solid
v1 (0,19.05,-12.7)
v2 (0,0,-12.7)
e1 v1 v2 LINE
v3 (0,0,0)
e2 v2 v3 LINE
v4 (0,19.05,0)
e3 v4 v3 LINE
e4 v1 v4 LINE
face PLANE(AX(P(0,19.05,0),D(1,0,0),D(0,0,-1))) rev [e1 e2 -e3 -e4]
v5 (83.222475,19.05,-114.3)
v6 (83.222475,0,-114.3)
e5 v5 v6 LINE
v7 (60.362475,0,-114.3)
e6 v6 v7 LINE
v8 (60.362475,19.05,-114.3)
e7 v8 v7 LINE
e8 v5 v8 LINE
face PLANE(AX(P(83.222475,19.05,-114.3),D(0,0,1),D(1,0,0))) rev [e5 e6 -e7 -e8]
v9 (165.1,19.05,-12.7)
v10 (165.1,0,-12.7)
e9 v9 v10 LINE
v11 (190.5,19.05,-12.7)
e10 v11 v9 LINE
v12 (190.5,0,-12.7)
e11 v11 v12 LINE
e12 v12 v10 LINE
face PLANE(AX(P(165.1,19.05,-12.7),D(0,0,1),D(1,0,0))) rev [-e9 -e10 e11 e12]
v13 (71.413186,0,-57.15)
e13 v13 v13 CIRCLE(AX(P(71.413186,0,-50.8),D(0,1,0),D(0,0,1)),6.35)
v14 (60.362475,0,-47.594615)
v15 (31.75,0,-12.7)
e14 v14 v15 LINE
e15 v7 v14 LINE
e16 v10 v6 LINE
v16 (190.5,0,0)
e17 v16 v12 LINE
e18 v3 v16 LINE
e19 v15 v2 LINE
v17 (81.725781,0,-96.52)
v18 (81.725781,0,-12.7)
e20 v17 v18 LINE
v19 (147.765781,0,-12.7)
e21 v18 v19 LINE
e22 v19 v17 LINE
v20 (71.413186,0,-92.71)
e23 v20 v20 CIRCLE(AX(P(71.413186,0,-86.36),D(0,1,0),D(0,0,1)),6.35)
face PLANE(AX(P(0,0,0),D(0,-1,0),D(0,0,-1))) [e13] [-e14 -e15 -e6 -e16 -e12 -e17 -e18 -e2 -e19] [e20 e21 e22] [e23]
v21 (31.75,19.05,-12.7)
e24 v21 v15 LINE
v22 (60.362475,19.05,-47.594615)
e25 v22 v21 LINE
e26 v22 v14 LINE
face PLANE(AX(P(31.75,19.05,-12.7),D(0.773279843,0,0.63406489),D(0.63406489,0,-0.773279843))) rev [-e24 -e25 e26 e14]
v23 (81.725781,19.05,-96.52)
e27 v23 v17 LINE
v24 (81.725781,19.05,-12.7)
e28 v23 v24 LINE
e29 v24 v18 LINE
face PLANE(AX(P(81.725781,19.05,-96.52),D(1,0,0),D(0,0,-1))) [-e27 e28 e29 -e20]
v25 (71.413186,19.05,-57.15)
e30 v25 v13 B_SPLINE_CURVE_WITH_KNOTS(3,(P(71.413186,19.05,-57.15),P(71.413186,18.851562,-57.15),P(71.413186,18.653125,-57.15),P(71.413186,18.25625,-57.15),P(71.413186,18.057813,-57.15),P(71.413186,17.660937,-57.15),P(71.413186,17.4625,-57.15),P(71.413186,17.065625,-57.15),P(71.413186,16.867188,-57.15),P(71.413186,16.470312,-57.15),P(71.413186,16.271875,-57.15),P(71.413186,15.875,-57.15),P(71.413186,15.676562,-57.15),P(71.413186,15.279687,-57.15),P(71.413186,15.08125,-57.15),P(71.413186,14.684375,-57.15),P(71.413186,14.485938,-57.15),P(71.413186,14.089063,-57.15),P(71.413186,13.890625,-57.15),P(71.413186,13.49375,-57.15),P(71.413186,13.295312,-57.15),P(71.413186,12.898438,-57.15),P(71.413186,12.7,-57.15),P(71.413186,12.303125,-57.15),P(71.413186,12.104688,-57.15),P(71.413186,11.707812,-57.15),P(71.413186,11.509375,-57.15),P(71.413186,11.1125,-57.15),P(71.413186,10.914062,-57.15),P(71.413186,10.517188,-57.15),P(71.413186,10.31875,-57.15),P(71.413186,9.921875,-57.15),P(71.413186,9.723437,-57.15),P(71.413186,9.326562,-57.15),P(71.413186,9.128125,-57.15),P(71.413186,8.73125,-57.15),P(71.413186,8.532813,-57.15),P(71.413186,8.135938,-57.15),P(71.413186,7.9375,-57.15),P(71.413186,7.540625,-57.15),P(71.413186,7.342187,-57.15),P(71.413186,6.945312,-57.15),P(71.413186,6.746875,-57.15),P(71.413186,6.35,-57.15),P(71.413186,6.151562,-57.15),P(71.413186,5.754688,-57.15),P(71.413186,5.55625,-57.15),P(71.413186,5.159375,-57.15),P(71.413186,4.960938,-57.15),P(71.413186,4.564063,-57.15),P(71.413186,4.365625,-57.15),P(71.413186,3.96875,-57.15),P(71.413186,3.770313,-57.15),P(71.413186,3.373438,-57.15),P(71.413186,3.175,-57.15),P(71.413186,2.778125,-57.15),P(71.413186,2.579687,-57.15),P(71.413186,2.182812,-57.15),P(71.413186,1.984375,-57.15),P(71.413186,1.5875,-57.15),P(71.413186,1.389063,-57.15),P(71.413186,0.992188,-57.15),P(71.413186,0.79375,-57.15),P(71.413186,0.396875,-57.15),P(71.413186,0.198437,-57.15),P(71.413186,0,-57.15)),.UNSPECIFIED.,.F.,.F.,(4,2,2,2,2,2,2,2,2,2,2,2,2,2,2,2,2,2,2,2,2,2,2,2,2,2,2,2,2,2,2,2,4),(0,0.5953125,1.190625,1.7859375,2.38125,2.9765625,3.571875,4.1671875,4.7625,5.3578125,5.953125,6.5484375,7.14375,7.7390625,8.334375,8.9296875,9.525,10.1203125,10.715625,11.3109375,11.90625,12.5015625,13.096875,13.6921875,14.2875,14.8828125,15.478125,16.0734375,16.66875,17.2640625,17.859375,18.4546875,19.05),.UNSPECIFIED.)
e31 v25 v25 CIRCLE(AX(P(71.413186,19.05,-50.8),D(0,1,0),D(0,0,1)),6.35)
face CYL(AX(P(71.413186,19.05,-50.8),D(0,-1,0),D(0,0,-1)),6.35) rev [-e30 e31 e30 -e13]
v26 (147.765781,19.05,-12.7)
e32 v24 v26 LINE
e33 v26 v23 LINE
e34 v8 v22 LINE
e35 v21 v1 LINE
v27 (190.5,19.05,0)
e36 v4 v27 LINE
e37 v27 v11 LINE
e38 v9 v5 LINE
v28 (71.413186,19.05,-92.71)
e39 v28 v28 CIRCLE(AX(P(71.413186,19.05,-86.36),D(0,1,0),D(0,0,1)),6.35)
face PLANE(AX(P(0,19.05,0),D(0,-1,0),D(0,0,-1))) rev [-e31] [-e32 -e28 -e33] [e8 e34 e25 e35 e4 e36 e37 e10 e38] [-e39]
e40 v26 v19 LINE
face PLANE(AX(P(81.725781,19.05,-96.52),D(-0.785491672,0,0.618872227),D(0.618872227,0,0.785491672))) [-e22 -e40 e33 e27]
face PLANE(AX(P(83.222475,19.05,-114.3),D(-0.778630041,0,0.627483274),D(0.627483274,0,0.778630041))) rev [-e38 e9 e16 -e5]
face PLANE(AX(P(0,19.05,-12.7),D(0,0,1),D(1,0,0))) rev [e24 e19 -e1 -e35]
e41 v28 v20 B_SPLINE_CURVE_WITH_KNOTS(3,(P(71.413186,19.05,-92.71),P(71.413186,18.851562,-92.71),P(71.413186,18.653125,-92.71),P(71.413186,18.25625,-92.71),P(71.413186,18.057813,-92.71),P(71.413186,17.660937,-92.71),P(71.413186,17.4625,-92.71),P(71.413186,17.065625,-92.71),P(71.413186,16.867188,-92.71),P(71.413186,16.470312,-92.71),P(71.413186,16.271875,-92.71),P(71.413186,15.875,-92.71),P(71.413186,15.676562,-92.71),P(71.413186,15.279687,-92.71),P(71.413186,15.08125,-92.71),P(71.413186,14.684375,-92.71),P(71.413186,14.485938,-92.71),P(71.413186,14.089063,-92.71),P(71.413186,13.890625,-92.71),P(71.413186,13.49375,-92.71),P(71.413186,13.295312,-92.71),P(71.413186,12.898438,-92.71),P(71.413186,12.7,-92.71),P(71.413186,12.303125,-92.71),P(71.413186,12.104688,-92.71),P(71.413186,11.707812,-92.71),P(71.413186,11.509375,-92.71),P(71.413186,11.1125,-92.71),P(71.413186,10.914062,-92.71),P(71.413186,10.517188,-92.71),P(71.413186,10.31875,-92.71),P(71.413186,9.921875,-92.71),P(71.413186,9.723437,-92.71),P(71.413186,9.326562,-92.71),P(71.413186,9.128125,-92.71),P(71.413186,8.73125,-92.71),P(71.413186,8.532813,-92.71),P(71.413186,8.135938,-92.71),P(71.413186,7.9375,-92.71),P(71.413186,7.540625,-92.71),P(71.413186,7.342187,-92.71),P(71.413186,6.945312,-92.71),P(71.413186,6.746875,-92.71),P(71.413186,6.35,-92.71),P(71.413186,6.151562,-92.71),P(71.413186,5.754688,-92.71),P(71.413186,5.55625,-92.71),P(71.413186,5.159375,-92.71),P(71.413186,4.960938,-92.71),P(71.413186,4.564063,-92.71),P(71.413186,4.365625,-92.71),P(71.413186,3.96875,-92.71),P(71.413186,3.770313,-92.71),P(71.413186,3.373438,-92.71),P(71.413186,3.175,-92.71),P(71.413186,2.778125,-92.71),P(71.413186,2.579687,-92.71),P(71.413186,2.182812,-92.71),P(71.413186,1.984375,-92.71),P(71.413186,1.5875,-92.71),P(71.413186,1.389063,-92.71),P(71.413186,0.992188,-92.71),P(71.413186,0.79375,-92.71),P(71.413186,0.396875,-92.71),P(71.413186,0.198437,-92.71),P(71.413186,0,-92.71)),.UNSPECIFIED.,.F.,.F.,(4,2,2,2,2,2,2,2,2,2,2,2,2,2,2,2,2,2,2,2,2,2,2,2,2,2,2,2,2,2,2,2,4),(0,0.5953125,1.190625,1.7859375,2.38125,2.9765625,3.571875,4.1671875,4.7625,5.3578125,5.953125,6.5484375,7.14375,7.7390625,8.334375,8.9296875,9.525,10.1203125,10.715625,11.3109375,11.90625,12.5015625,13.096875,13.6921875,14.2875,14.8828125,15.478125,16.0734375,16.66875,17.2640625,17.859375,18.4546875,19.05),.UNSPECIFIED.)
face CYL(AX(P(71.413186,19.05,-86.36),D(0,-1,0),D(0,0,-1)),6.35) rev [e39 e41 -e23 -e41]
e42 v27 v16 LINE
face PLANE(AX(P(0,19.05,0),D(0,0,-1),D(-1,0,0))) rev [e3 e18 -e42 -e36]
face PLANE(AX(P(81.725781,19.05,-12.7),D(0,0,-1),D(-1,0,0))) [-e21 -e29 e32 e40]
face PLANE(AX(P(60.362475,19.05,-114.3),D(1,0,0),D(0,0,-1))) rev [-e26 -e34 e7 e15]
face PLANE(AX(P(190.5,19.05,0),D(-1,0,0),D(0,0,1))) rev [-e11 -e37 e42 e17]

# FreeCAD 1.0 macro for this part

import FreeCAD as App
import Part
import Sketcher
from FreeCAD import Vector
Q = App.Units.Quantity

doc = App.newDocument("Part")
body = doc.addObject("PartDesign::Body", "Body")

# Sketch on XZ plane
sketch1 = body.newObject("Sketcher::SketchObject", "Sketch")
sketch1.AttachmentSupport = (doc.getObject("XZ_Plane"), [""])
sketch1.MapMode = "FlatFace"
sketch1.addGeometry([
    Part.LineSegment(Vector(0, 0, 0), Vector(190.5, 0, 0)),  # 0
    Part.LineSegment(Vector(190.5, 0, 0), Vector(190.5, -12.7, 0)),  # 1
    Part.LineSegment(Vector(190.5, -12.7, 0), Vector(165.1, -12.7, 0)),  # 2
    Part.LineSegment(Vector(165.1, -12.7, 0), Vector(83.222475, -114.3, 0)),  # 3
    Part.LineSegment(Vector(83.222475, -114.3, 0), Vector(60.362475, -114.3, 0)),  # 4
    Part.LineSegment(Vector(60.362475, -114.3, 0), Vector(60.362475, -47.594615, 0)),  # 5
    Part.LineSegment(Vector(60.362475, -47.594615, 0), Vector(31.75, -12.7, 0)),  # 6
    Part.LineSegment(Vector(31.75, -12.7, 0), Vector(0, -12.7, 0)),  # 7
    Part.LineSegment(Vector(0, -12.7, 0), Vector(0, 0, 0)),  # 8
    Part.Circle(Vector(71.413186, -50.8, 0), Vector(0, 0, 1), 6.35),  # 9
    Part.Circle(Vector(71.413186, -86.36, 0), Vector(0, 0, 1), 6.35),  # 10
    Part.LineSegment(Vector(81.725781, -12.7, 0), Vector(81.725781, -96.52, 0)),  # 11
    Part.LineSegment(Vector(81.725781, -96.52, 0), Vector(147.765781, -12.7, 0)),  # 12
    Part.LineSegment(Vector(147.765781, -12.7, 0), Vector(81.725781, -12.7, 0)),  # 13
], False)
sketch1.addConstraint([
    Sketcher.Constraint("Coincident", 0, 2, 1, 1),
    Sketcher.Constraint("Coincident", 1, 2, 2, 1),
    Sketcher.Constraint("Coincident", 2, 2, 3, 1),
    Sketcher.Constraint("Coincident", 3, 2, 4, 1),
    Sketcher.Constraint("Coincident", 4, 2, 5, 1),
    Sketcher.Constraint("Coincident", 5, 2, 6, 1),
    Sketcher.Constraint("Coincident", 6, 2, 7, 1),
    Sketcher.Constraint("Coincident", 7, 2, 8, 1),
    Sketcher.Constraint("Coincident", 8, 2, 0, 1),
    Sketcher.Constraint("Coincident", 11, 2, 12, 1),
    Sketcher.Constraint("Coincident", 12, 2, 13, 1),
    Sketcher.Constraint("Coincident", 13, 2, 11, 1),
    Sketcher.Constraint("Horizontal", 0),
    Sketcher.Constraint("Vertical", 1),
    Sketcher.Constraint("Horizontal", 2),
    Sketcher.Constraint("Horizontal", 4),
    Sketcher.Constraint("Vertical", 5),
    Sketcher.Constraint("Horizontal", 7),
    Sketcher.Constraint("Vertical", 8),
    Sketcher.Constraint("Vertical", 11),
    Sketcher.Constraint("Horizontal", 13),
    Sketcher.Constraint("Coincident", 8, 2, -1, 1),
    Sketcher.Constraint("Equal", 9, 10),
    Sketcher.Constraint("Horizontal", 2, 2, 6, 2),
    Sketcher.Constraint("Horizontal", 7, 2, 12, 2),
    Sketcher.Constraint("Vertical", 9, 3, 10, 3),
    Sketcher.Constraint("Diameter", 9, Q("0.5 in")),
    Sketcher.Constraint("DistanceX", 2, 2, 2, 1, Q("1 in")),
    Sketcher.Constraint("DistanceX", 0, 1, 0, 2, Q("7.5 in")),
    Sketcher.Constraint("DistanceX", 4, 2, 4, 1, Q("0.9 in")),
    Sketcher.Constraint("DistanceX", 13, 2, 13, 1, Q("2.6 in")),
    Sketcher.Constraint("DistanceY", 1, 2, 1, 1, Q("0.5 in")),
    Sketcher.Constraint("DistanceY", 11, 2, 11, 1, Q("3.3 in")),
    Sketcher.Constraint("DistanceY", 9, 3, -1, 1, Q("2 in")),
    Sketcher.Constraint("DistanceY", 3, 2, 2, 2, Q("4 in")),
    Sketcher.Constraint("DistanceX", 7, 2, 7, 1, Q("1.25 in")),
    Sketcher.Constraint("DistanceY", 10, 3, -1, 1, Q("3.4 in")),
    Sketcher.Constraint("Distance", 3, 130.48559),
    Sketcher.Constraint("Distance", 6, 45.125468),
    Sketcher.Constraint("DistanceX", -1, 1, 11, 2, 81.725781),
    Sketcher.Constraint("DistanceX", 10, 3, 3, 2, 11.80929),
])
pad1 = body.newObject("PartDesign::Pad", "Pad")
pad1.Profile = sketch1
pad1.Length = Q("0.75 in")
pad1.Reversed = True

doc.recompute()
